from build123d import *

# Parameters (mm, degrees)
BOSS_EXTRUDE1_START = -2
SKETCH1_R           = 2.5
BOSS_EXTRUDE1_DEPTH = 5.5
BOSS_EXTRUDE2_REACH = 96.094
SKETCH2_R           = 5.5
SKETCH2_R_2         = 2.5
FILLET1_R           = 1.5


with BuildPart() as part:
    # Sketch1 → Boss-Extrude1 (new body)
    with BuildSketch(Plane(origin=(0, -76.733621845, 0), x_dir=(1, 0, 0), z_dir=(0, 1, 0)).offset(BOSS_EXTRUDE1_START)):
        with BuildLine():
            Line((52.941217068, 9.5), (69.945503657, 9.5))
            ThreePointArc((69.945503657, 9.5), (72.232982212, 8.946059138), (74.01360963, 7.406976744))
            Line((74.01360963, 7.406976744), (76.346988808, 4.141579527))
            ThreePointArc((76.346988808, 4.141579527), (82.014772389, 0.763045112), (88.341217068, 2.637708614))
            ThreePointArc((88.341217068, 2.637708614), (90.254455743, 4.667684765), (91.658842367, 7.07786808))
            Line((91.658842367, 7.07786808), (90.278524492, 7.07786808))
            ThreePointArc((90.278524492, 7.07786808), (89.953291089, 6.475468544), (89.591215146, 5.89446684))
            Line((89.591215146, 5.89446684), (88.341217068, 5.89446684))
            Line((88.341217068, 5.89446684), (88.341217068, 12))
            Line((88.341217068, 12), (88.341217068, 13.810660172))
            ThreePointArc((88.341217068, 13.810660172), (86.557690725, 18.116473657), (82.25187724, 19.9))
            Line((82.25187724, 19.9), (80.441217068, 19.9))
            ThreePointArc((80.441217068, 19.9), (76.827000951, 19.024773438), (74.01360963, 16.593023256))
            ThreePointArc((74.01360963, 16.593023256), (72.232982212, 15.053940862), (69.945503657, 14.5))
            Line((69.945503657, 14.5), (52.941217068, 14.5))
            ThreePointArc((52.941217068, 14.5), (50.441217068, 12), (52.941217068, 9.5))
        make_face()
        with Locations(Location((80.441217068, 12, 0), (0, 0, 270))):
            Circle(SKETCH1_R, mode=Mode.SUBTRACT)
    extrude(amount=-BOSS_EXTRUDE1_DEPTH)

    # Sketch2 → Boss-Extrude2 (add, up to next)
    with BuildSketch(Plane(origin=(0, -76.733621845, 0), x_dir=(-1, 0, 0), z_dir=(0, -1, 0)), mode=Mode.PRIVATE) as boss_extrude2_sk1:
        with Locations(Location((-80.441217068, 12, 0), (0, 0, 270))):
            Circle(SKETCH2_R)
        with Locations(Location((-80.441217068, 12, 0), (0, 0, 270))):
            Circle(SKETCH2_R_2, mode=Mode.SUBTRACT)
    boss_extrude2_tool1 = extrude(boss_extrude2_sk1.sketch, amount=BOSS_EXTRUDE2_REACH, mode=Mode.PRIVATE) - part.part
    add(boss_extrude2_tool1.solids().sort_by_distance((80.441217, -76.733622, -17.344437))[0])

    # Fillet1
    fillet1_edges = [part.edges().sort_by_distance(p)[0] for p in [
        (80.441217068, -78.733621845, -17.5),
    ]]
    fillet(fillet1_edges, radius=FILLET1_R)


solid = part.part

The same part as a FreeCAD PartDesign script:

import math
import FreeCAD as App
import Part
import Sketcher
Q = App.Units.Quantity


def edges_at(feature, points):
    """Names of the edges that pass closest to the given points."""
    edges = feature.Shape.Edges
    near = lambda p: min(range(len(edges)), key=lambda i: edges[i].distToShape(Part.Vertex(*p))[0])
    return sorted({f"Edge{near(p) + 1}" for p in points})

doc = App.newDocument("Part")
body = doc.addObject("PartDesign::Body", "Body")

# Sketch on XZ plane
sketch1 = body.newObject("Sketcher::SketchObject", "Sketch")
sketch1.AttachmentSupport = (doc.getObject("XZ_Plane"), [""])
sketch1.MapMode = "FlatFace"
sketch1.AttachmentOffset = App.Placement(App.Vector(0, 0, 78.733622), App.Rotation())
sketch1.addGeometry(Part.LineSegment(App.Vector(52.9, -9.5, 0), App.Vector(69.9, -9.5, 0)), False)
sketch1.addGeometry(Part.ArcOfCircle(Part.Circle(App.Vector(69.9, -4.5, 0), App.Vector(0, 0, 1), 5), math.radians(-90), math.radians(-36)), False)
sketch1.addGeometry(Part.LineSegment(App.Vector(74, -7.4, 0), App.Vector(76.3, -4.1, 0)), False)
sketch1.addGeometry(Part.ArcOfCircle(Part.Circle(App.Vector(83, -8.9, 0), App.Vector(0, 0, 1), 8.2), math.radians(50), math.radians(144)), False)
sketch1.addGeometry(Part.ArcOfCircle(Part.Circle(App.Vector(80.4, -12, 0), App.Vector(0, 0, 1), 12.2), math.radians(24), math.radians(50)), False)
sketch1.addGeometry(Part.LineSegment(App.Vector(91.7, -7.1, 0), App.Vector(90.3, -7.1, 0)), False)
sketch1.addGeometry(Part.ArcOfCircle(Part.Circle(App.Vector(80.4, -12, 0), App.Vector(0, 0, 1), 11), math.radians(26.58), math.radians(33.71)), False)
sketch1.addGeometry(Part.LineSegment(App.Vector(89.6, -5.9, 0), App.Vector(88.3, -5.9, 0)), False)
sketch1.addGeometry(Part.LineSegment(App.Vector(88.3, -5.9, 0), App.Vector(88.3, -13.8, 0)), False)
sketch1.addGeometry(Part.ArcOfCircle(Part.Circle(App.Vector(82.3, -13.8, 0), App.Vector(0, 0, 1), 6.1), math.radians(-90), math.radians(0)), False)
sketch1.addGeometry(Part.LineSegment(App.Vector(82.3, -19.9, 0), App.Vector(80.4, -19.9, 0)), False)
sketch1.addGeometry(Part.ArcOfCircle(Part.Circle(App.Vector(80.4, -12, 0), App.Vector(0, 0, 1), 7.9), math.radians(-144), math.radians(-90)), False)
sketch1.addGeometry(Part.ArcOfCircle(Part.Circle(App.Vector(69.9, -19.5, 0), App.Vector(0, 0, 1), 5), math.radians(36), math.radians(90)), False)
sketch1.addGeometry(Part.LineSegment(App.Vector(69.9, -14.5, 0), App.Vector(52.9, -14.5, 0)), False)
sketch1.addGeometry(Part.ArcOfCircle(Part.Circle(App.Vector(52.9, -12, 0), App.Vector(0, 0, 1), 2.5), math.radians(90), math.radians(270)), False)
sketch1.addGeometry(Part.Circle(App.Vector(80.4, -12, 0), App.Vector(0, 0, 1), 2.5), False)
sketch1.addConstraint(Sketcher.Constraint("Tangent", 0, 2, 1, 1))
sketch1.addConstraint(Sketcher.Constraint("Tangent", 1, 2, 2, 1))
sketch1.addConstraint(Sketcher.Constraint("Tangent", 2, 2, 3, 2))
sketch1.addConstraint(Sketcher.Constraint("Tangent", 3, 1, 4, 2))
sketch1.addConstraint(Sketcher.Constraint("Coincident", 4, 1, 5, 1))
sketch1.addConstraint(Sketcher.Constraint("Coincident", 5, 2, 6, 1))
sketch1.addConstraint(Sketcher.Constraint("Coincident", 6, 2, 7, 1))
sketch1.addConstraint(Sketcher.Constraint("Coincident", 7, 2, 8, 1))
sketch1.addConstraint(Sketcher.Constraint("Tangent", 8, 2, 9, 2))
sketch1.addConstraint(Sketcher.Constraint("Tangent", 9, 1, 10, 1))
sketch1.addConstraint(Sketcher.Constraint("Tangent", 10, 2, 11, 2))
sketch1.addConstraint(Sketcher.Constraint("Tangent", 11, 1, 12, 1))
sketch1.addConstraint(Sketcher.Constraint("Tangent", 12, 2, 13, 1))
sketch1.addConstraint(Sketcher.Constraint("Tangent", 13, 2, 14, 2))
sketch1.addConstraint(Sketcher.Constraint("Tangent", 14, 1, 0, 1))
sketch1.addConstraint(Sketcher.Constraint("Horizontal", 0))
sketch1.addConstraint(Sketcher.Constraint("Horizontal", 5))
sketch1.addConstraint(Sketcher.Constraint("Horizontal", 7))
sketch1.addConstraint(Sketcher.Constraint("Vertical", 8))
sketch1.addConstraint(Sketcher.Constraint("Horizontal", 10))
sketch1.addConstraint(Sketcher.Constraint("Horizontal", 13))
sketch1.addConstraint(Sketcher.Constraint("Coincident", 6, 3, 4, 3))
sketch1.addConstraint(Sketcher.Constraint("Coincident", 11, 3, 4, 3))
sketch1.addConstraint(Sketcher.Constraint("Coincident", 15, 3, 4, 3))
sketch1.addConstraint(Sketcher.Constraint("Equal", 1, 12))
sketch1.addConstraint(Sketcher.Constraint("Equal", 14, 15))
sketch1.addConstraint(Sketcher.Constraint("Horizontal", 11, 3, 14, 3))
sketch1.addConstraint(Sketcher.Constraint("Vertical", 1, 3, 12, 3))
sketch1.addConstraint(Sketcher.Constraint("Vertical", 3, 1, 7, 2))
sketch1.addConstraint(Sketcher.Constraint("Vertical", 1, 2, 11, 1))
sketch1.addConstraint(Sketcher.Constraint("Diameter", 15, Q("5 mm")))
sketch1.addConstraint(Sketcher.Constraint("Radius", 1, Q("5 mm")))
sketch1.addConstraint(Sketcher.Constraint("Radius", 6, Q("11 mm")))
sketch1.addConstraint(Sketcher.Constraint("Radius", 11, Q("7.9 mm")))
sketch1.addConstraint(Sketcher.Constraint("Radius", 4, Q("12.25 mm")))
sketch1.addConstraint(Sketcher.Constraint("DistanceY", 4, 3, -1, 1, Q("12 mm")))
sketch1.addConstraint(Sketcher.Constraint("DistanceX", 7, 2, 7, 1, Q("1.249998 mm")))
sketch1.addConstraint(Sketcher.Constraint("DistanceX", 14, 3, 6, 3, Q("27.5 mm")))
sketch1.addConstraint(Sketcher.Constraint("DistanceX", 4, 3, 3, 1, Q("7.9 mm")))
sketch1.addConstraint(Sketcher.Constraint("Radius", 9, Q("6.08934 mm")))
sketch1.addConstraint(Sketcher.Constraint("DistanceY", 5, 2, 6, 2, Q("1.183401 mm")))
sketch1.addConstraint(Sketcher.Constraint("DistanceX", -1, 1, 1, 2, Q("74.01361 mm")))
pad1 = body.newObject("PartDesign::Pad", "Pad")
pad1.Profile = sketch1
pad1.Length = 5.5

# Sketch on XZ plane
sketch2 = body.newObject("Sketcher::SketchObject", "Sketch001")
sketch2.AttachmentSupport = (doc.getObject("XZ_Plane"), [""])
sketch2.MapMode = "FlatFace"
sketch2.AttachmentOffset = App.Placement(App.Vector(0, 0, 76.733622), App.Rotation())
sketch2.addGeometry(Part.Circle(App.Vector(80.4, -12, 0), App.Vector(0, 0, 1), 5.5), False)
sketch2.addGeometry(Part.Circle(App.Vector(80.4, -12, 0), App.Vector(0, 0, 1), 2.5), False)
sketch2.addConstraint(Sketcher.Constraint("Coincident", 1, 3, 0, 3))
sketch2.addConstraint(Sketcher.Constraint("Diameter", 0, Q("11 mm")))
sketch2.addConstraint(Sketcher.Constraint("Diameter", 1, Q("5 mm")))
sketch2.addConstraint(Sketcher.Constraint("DistanceY", 0, 3, -1, 1, Q("12 mm")))
sketch2.addConstraint(Sketcher.Constraint("DistanceX", -1, 1, 0, 3, Q("80.441217 mm")))
pad2 = body.newObject("PartDesign::Pad", "Pad001")
pad2.Profile = sketch2
pad2.Length = 2
doc.recompute()

fillet = body.newObject("PartDesign::Fillet", "Fillet")
fillet.Base = (pad2, edges_at(pad2, [(80.441, -78.734, -17.5)]))
fillet.Radius = 1.5

doc.recompute()
